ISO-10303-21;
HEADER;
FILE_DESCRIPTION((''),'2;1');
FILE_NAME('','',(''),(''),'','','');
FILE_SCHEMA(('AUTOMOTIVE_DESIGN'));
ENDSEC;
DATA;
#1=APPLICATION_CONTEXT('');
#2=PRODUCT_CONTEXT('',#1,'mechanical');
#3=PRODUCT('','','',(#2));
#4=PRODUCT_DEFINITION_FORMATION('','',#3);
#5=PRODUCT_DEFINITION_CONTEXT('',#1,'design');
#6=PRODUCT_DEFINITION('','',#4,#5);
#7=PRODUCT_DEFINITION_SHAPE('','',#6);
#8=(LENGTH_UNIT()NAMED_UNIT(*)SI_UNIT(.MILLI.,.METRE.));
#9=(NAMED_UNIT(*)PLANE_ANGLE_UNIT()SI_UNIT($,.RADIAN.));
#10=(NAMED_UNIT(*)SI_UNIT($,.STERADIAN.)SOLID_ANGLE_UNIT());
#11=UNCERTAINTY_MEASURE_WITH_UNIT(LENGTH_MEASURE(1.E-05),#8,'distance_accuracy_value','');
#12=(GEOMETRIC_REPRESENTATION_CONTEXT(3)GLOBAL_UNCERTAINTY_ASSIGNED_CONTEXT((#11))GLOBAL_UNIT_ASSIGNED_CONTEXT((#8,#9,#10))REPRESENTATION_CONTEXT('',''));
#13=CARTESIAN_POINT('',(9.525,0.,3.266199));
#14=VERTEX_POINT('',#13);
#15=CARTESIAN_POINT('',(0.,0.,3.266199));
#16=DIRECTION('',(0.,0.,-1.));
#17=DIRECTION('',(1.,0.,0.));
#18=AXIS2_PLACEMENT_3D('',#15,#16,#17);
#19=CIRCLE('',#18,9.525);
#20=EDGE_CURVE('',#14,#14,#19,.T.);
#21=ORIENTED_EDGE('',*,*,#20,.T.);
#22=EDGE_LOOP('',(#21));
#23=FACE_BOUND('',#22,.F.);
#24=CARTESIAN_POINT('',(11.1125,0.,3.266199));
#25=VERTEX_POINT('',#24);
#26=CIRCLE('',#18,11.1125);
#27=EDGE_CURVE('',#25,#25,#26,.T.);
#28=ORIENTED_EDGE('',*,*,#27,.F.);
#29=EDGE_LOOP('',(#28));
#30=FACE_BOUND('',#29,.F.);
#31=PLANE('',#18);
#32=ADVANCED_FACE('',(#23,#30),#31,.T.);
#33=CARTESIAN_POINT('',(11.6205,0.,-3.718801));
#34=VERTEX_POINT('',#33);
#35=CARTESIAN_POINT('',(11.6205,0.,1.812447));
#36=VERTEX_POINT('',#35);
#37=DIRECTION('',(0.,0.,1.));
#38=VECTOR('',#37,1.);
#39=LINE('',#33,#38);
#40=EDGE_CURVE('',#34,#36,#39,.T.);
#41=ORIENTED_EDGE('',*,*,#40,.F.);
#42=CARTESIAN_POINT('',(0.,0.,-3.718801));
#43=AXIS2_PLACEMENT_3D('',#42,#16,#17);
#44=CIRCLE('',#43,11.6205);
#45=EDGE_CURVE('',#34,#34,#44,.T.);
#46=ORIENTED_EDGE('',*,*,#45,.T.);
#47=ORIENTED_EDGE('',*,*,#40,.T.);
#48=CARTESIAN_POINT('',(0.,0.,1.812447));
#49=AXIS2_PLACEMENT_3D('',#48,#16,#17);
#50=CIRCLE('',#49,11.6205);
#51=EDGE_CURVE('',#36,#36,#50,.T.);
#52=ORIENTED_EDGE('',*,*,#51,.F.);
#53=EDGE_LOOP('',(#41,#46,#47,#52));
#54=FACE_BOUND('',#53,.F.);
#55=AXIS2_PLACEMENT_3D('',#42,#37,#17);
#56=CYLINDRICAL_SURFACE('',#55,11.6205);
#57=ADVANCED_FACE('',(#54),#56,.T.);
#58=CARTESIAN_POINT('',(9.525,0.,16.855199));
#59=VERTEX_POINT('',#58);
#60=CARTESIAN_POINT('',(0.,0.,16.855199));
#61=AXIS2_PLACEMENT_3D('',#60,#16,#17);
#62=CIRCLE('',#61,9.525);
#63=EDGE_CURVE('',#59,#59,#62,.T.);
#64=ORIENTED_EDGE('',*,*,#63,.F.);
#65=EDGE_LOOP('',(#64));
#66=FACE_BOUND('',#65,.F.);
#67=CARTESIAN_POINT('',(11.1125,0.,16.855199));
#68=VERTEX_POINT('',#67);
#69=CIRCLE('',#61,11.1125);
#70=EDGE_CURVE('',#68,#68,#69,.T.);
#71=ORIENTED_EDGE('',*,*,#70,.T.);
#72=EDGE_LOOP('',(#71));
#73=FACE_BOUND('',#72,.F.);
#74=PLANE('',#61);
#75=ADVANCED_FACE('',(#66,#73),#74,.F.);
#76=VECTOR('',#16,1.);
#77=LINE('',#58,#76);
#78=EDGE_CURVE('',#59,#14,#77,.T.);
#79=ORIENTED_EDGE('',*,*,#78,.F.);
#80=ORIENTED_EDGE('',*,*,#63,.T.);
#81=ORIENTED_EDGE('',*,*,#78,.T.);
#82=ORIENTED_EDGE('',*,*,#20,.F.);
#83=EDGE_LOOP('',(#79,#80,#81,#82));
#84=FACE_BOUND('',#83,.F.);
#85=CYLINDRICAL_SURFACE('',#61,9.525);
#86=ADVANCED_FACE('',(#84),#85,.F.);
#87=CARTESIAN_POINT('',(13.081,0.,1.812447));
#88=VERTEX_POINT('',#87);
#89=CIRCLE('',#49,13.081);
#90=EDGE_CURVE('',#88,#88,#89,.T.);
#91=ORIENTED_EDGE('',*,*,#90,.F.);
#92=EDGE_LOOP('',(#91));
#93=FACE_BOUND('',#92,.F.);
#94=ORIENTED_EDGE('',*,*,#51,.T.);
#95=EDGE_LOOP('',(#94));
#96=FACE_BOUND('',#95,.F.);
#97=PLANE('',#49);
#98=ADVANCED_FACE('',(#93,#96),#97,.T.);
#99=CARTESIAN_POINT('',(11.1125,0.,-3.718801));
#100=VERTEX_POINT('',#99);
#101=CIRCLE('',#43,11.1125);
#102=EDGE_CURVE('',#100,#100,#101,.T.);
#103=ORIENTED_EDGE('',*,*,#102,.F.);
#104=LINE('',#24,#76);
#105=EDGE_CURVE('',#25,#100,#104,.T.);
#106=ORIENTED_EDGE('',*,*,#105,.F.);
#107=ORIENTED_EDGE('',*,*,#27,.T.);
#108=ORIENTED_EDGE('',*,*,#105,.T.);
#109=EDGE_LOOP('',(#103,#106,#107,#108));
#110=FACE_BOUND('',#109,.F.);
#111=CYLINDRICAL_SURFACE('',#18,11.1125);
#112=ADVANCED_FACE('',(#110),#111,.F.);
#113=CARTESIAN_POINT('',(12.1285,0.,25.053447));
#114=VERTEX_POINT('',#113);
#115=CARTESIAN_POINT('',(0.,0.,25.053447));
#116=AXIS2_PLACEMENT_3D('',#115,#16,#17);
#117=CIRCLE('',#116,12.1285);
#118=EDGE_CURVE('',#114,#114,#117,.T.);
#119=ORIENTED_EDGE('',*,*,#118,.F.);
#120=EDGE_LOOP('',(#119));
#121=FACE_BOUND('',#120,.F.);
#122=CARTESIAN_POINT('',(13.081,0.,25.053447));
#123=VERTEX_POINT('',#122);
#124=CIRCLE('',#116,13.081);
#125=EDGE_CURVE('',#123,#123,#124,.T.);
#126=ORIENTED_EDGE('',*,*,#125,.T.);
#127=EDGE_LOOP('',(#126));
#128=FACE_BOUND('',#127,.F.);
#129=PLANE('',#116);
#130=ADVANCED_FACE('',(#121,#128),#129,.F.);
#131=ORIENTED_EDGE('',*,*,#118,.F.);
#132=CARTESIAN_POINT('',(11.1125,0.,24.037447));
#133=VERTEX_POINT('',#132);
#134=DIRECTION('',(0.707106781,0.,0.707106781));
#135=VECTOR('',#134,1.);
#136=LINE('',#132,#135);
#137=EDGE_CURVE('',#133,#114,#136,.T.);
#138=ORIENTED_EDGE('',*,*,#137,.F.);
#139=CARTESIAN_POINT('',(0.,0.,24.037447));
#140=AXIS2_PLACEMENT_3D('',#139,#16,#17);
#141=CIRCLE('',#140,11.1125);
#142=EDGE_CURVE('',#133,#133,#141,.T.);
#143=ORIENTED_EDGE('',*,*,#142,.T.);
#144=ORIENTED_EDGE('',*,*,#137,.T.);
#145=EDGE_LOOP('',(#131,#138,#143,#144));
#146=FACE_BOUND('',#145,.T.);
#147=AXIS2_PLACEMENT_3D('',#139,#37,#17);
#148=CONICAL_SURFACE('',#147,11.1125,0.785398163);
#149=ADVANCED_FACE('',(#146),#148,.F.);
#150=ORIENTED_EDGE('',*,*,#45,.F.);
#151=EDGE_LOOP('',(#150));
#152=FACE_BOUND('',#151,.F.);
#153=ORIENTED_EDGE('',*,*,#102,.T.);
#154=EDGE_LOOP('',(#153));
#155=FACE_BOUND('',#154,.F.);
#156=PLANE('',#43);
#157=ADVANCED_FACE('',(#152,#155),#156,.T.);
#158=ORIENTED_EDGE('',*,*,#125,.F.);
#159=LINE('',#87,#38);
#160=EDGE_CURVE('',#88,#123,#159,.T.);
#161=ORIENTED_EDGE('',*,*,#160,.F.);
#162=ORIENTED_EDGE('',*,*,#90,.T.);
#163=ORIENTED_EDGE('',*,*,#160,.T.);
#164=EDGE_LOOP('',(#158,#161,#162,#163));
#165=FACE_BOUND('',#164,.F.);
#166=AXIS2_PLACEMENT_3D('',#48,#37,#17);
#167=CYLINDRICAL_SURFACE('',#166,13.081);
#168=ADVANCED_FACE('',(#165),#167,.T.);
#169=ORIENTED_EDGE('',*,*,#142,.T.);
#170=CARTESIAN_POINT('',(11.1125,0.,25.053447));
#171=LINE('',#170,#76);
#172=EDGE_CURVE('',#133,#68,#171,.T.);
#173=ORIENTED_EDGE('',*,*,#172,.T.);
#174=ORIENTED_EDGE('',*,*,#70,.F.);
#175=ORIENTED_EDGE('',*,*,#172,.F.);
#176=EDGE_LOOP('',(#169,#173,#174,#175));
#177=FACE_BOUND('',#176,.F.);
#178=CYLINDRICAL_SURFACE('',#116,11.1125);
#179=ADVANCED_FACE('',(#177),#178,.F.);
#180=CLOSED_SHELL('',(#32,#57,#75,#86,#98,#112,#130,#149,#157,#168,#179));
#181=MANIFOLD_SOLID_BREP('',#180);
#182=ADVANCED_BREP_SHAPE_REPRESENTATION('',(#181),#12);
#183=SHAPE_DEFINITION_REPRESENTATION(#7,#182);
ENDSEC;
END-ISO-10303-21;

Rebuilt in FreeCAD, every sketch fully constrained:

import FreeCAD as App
import Part
import Sketcher

V = App.Vector
Q = App.Units.Quantity


def edges_at(feature, points):
    """Names of the edges that pass closest to the given points."""
    edges = feature.Shape.Edges
    near = lambda p: min(range(len(edges)), key=lambda i: edges[i].distToShape(Part.Vertex(*p))[0])
    return sorted({f"Edge{near(p) + 1}" for p in points})


def add_polygon(sketch, points):
    """Adds a closed chain of lines whose ends are joined by coincident constraints."""
    first, n = sketch.GeometryCount, len(points)
    for a, b in zip(points, points[1:] + points[:1]):
        sketch.addGeometry(Part.LineSegment(App.Vector(*a, 0), App.Vector(*b, 0)), False)
    for i in range(n):
        sketch.addConstraint(Sketcher.Constraint("Coincident", first + i, 2, first + (i + 1) % n, 1))

doc = App.newDocument("Part")
body = doc.addObject("PartDesign::Body", "Body")

sketch1 = body.newObject("Sketcher::SketchObject", "Sketch")
sketch1.AttachmentSupport = (doc.getObject("XZ_Plane"), [""])
sketch1.MapMode = "FlatFace"
add_polygon(sketch1, [(11.1125, 25.053447), (11.1125, 16.855199), (9.525, 16.855199), (9.525, 3.266199), (11.1125, 3.266199), (11.1125, -3.718801), (11.6205, -3.718801), (11.6205, 1.812447), (13.081, 1.812447), (13.081, 25.053447)])
sketch1.addConstraint([
    Sketcher.Constraint("Vertical", 0),
    Sketcher.Constraint("Horizontal", 1),
    Sketcher.Constraint("Vertical", 2),
    Sketcher.Constraint("Horizontal", 3),
    Sketcher.Constraint("Vertical", 4),
    Sketcher.Constraint("Horizontal", 5),
    Sketcher.Constraint("Vertical", 6),
    Sketcher.Constraint("Horizontal", 7),
    Sketcher.Constraint("Vertical", 8),
    Sketcher.Constraint("Horizontal", 9),
    Sketcher.Constraint("Vertical", 0, 2, 3, 2),
    Sketcher.Constraint("DistanceX", 5, 1, 5, 2, Q("0.02 in")),
    Sketcher.Constraint("DistanceX", 1, 2, 1, 1, Q("0.0625 in")),
    Sketcher.Constraint("DistanceY", 2, 2, 2, 1, Q("0.535 in")),
    Sketcher.Constraint("DistanceY", 4, 2, 4, 1, Q("0.275 in")),
    Sketcher.Constraint("DistanceY", 8, 1, 8, 2, Q("0.915 in")),
    Sketcher.Constraint("DistanceX", 2, 2, 7, 2, Q("0.14 in")),
    Sketcher.Constraint("DistanceX", -1, 1, 0, 2, Q("0.4375 in")),
    Sketcher.Constraint("DistanceY", -1, 1, 0, 2, Q("16.855199 mm")),
    Sketcher.Constraint("DistanceY", 0, 2, 0, 1, Q("8.198248 mm")),
])
revolution = body.newObject("PartDesign::Revolution", "Revolution")
revolution.Profile = sketch1
revolution.ReferenceAxis = (sketch1, ["V_Axis"])
revolution.Angle = 360
doc.recompute()

chamfer = body.newObject("PartDesign::Chamfer", "Chamfer")
chamfer.Base = (revolution, edges_at(revolution, [(-11.113, 0, 25.053)]))
chamfer.Size = Q("0.04 in")

doc.recompute()
